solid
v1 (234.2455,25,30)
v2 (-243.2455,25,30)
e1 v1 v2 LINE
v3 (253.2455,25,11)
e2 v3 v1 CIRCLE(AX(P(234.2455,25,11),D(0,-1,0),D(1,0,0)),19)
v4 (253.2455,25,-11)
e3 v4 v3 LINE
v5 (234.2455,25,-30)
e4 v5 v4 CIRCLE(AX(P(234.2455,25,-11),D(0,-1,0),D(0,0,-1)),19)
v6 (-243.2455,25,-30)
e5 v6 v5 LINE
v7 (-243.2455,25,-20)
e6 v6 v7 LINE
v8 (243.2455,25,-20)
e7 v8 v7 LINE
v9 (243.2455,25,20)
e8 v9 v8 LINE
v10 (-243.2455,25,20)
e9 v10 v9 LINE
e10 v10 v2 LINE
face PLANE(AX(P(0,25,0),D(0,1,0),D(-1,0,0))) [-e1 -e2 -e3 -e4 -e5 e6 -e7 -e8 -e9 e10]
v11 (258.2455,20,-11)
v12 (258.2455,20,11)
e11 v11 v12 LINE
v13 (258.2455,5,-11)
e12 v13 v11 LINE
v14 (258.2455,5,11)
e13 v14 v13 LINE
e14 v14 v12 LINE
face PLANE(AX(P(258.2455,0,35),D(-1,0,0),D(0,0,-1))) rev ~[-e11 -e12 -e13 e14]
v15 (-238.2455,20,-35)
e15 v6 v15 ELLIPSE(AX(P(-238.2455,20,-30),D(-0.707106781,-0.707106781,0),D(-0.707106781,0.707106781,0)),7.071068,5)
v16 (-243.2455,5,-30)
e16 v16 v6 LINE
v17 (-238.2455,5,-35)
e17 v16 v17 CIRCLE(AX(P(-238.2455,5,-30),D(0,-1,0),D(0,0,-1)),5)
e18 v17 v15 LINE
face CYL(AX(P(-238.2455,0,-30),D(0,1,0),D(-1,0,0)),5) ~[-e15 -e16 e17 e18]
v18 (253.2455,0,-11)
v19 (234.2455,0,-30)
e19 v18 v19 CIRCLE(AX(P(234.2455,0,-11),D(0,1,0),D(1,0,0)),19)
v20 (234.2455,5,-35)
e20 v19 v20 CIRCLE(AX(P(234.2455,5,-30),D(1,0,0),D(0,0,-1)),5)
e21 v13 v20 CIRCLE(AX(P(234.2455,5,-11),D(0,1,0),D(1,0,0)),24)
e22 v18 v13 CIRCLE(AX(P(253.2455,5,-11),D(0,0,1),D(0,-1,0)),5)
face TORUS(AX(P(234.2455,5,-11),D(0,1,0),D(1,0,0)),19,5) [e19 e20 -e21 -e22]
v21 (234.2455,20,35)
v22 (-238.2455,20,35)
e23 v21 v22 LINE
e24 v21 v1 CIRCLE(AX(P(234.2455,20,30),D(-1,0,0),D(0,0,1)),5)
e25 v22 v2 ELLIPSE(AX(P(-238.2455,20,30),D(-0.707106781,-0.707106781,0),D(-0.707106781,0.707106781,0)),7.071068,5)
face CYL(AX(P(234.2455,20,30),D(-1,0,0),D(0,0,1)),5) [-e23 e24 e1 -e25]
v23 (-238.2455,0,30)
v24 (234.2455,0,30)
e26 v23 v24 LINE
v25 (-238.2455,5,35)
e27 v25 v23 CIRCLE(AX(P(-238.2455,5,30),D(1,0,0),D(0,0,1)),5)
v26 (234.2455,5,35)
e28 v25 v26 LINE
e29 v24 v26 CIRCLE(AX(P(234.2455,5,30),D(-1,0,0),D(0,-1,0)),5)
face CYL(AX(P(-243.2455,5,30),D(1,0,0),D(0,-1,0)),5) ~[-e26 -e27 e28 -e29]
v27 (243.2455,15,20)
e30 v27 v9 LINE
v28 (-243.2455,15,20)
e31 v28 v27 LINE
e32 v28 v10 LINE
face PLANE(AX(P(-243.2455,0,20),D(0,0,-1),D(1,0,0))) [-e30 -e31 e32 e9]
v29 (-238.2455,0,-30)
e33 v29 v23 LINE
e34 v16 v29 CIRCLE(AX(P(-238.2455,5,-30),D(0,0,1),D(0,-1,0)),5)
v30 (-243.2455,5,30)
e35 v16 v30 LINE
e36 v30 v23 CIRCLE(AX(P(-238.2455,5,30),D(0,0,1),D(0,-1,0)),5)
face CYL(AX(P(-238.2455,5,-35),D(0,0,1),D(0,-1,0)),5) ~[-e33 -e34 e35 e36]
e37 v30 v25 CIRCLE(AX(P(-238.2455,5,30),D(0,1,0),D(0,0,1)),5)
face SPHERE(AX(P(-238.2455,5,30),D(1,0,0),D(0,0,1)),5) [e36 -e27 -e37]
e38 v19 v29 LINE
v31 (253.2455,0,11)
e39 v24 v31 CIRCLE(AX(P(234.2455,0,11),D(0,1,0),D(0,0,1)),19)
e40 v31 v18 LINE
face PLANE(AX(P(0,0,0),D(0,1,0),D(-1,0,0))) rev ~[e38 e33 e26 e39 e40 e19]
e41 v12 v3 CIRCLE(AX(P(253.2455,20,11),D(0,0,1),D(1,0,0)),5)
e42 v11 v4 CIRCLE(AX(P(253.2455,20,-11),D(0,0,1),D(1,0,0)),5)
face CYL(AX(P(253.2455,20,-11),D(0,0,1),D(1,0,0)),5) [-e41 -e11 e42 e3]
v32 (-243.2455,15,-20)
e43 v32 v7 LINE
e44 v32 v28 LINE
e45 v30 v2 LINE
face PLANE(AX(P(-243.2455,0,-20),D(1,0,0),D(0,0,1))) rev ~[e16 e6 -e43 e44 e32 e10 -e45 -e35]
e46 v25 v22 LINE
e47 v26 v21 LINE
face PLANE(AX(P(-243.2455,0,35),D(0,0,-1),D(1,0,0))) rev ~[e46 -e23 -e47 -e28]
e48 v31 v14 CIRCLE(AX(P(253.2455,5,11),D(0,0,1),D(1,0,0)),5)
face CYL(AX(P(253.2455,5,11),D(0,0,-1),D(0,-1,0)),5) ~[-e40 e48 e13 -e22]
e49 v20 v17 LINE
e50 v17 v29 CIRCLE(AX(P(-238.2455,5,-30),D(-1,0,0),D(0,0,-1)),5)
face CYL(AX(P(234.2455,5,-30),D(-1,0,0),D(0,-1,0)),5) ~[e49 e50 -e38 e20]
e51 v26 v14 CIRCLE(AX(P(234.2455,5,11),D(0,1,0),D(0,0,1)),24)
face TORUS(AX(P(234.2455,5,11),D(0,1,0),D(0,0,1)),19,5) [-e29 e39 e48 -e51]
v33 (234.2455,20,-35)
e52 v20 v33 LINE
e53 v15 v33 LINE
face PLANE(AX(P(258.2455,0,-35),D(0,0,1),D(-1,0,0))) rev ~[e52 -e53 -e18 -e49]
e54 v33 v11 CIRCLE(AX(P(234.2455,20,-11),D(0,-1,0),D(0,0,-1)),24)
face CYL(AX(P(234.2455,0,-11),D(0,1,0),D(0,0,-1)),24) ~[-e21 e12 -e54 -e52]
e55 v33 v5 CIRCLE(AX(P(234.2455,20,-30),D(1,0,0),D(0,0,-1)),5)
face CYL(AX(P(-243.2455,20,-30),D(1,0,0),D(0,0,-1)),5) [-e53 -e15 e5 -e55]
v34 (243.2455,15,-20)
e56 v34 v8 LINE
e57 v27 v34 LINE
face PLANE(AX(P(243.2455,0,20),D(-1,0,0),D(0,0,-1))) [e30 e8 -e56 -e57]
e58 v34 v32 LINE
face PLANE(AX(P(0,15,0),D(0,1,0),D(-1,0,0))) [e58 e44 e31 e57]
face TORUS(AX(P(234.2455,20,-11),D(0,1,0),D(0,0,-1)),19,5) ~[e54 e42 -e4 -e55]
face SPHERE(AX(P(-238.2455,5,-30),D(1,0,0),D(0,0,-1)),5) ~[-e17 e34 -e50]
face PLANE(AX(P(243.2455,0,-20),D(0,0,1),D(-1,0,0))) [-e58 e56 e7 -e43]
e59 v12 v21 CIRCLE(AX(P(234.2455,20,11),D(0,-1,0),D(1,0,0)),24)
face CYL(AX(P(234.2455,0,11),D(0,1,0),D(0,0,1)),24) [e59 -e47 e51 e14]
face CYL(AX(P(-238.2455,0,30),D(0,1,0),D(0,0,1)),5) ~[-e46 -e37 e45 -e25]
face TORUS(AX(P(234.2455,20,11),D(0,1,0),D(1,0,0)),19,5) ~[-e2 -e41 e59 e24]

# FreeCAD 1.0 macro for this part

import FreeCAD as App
import Part
import Sketcher
Q = App.Units.Quantity


def edges_at(feature, points):
    """Names of the edges that pass closest to the given points."""
    edges = feature.Shape.Edges
    near = lambda p: min(range(len(edges)), key=lambda i: edges[i].distToShape(Part.Vertex(*p))[0])
    return sorted({f"Edge{near(p) + 1}" for p in points})


def add_polygon(sketch, points):
    """Adds a closed chain of lines whose ends are joined by coincident constraints."""
    first, n = sketch.GeometryCount, len(points)
    for a, b in zip(points, points[1:] + points[:1]):
        sketch.addGeometry(Part.LineSegment(App.Vector(*a, 0), App.Vector(*b, 0)), False)
    for i in range(n):
        sketch.addConstraint(Sketcher.Constraint("Coincident", first + i, 2, first + (i + 1) % n, 1))

doc = App.newDocument("Part")
body = doc.addObject("PartDesign::Body", "Body")

sketch1 = body.newObject("Sketcher::SketchObject", "Sketch")
sketch1.AttachmentSupport = (doc.getObject("XZ_Plane"), [""])
sketch1.MapMode = "FlatFace"
add_polygon(sketch1, [(-243, -20), (-243, 20), (243, 20), (243, -20)])
sketch1.addConstraint([
    Sketcher.Constraint("Vertical", 0),
    Sketcher.Constraint("Horizontal", 1),
    Sketcher.Constraint("Vertical", 2),
    Sketcher.Constraint("Horizontal", 3),
    Sketcher.Constraint("Symmetric", 0, 2, 2, 2, -1, 1),
    Sketcher.Constraint("DistanceY", 0, 1, 0, 2, Q("40 mm")),
    Sketcher.Constraint("DistanceX", 1, 1, 1, 2, Q("486.491 mm")),
])
pad1 = body.newObject("PartDesign::Pad", "Pad")
pad1.Profile = sketch1
pad1.Length = 15
pad1.Reversed = True

sketch2 = body.newObject("Sketcher::SketchObject", "Sketch001")
sketch2.AttachmentSupport = (doc.getObject("XZ_Plane"), [""])
sketch2.MapMode = "FlatFace"
add_polygon(sketch2, [(243, 20), (-243, 20), (-243, 35), (258, 35), (258, -35), (-243, -35), (-243, -20), (243, -20)])
sketch2.addConstraint([
    Sketcher.Constraint("Horizontal", 0),
    Sketcher.Constraint("Vertical", 1),
    Sketcher.Constraint("Horizontal", 2),
    Sketcher.Constraint("Vertical", 3),
    Sketcher.Constraint("Horizontal", 4),
    Sketcher.Constraint("Vertical", 5),
    Sketcher.Constraint("Horizontal", 6),
    Sketcher.Constraint("Vertical", 7),
    Sketcher.Constraint("Symmetric", 0, 2, 6, 2, -1, 1),
    Sketcher.Constraint("Symmetric", 1, 2, 4, 2, -1),
    Sketcher.Constraint("DistanceY", 1, 1, 1, 2, Q("15 mm")),
    Sketcher.Constraint("DistanceY", 7, 1, 7, 2, Q("40 mm")),
    Sketcher.Constraint("DistanceX", 6, 2, 3, 2, Q("15 mm")),
    Sketcher.Constraint("DistanceX", 0, 2, 0, 1, Q("486.491 mm")),
])
pad2 = body.newObject("PartDesign::Pad", "Pad001")
pad2.Profile = sketch2
pad2.Length = 25
pad2.Reversed = True
doc.recompute()

fillet = body.newObject("PartDesign::Fillet", "Fillet")
fillet.Base = (pad2, edges_at(pad2, [(258.245, 12.5, -35), (258.245, 12.5, 35)]))
fillet.Radius = 24
doc.recompute()

fillet2 = body.newObject("PartDesign::Fillet", "Fillet001")
fillet2.Base = (fillet, edges_at(fillet, [
    (258.245, 0, 0),
    (-4.5, 0, 35),
    (-4.5, 0, -35),
    (-243.245, 12.5, -35),
    (-243.245, 12.5, 35),
    (251.216, 25, -27.971),
    (258.245, 25, 0),
    (251.216, 25, 27.971),
    (-4.5, 25, 35),
    (-4.5, 25, -35),
    (-243.245, 0, 0),
]))
fillet2.Radius = 5

doc.recompute()
